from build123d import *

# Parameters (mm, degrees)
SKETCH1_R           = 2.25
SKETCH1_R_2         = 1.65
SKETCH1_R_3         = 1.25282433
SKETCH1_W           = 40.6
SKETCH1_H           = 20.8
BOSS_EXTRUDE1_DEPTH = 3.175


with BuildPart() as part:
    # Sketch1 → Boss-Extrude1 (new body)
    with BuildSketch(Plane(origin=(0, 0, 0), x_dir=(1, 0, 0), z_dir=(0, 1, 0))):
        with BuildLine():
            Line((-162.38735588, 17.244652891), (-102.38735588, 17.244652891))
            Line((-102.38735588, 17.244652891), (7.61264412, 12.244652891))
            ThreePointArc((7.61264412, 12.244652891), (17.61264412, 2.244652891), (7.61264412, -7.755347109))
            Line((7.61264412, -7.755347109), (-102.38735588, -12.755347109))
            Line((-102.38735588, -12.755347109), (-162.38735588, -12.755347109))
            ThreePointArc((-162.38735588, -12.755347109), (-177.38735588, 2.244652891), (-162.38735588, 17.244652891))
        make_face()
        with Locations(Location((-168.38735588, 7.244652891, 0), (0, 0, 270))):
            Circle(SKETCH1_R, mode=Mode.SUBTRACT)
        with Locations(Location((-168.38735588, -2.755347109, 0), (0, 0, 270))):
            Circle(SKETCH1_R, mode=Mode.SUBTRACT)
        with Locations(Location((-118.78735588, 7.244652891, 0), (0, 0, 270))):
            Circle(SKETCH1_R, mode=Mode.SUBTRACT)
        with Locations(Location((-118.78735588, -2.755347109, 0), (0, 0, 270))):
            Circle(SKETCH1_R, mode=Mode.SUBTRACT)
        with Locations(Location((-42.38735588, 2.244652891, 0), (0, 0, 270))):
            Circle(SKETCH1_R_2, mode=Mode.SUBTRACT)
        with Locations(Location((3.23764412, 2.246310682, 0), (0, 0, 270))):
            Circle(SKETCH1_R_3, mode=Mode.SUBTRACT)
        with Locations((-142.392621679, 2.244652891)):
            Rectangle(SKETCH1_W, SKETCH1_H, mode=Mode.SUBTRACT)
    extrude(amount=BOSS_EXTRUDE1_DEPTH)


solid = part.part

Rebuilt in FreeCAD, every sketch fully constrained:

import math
import FreeCAD as App
import Part
import Sketcher
from FreeCAD import Vector


def add_polygon(sketch, points):
    """Adds a closed chain of lines whose ends are joined by coincident constraints."""
    first, n = sketch.GeometryCount, len(points)
    for a, b in zip(points, points[1:] + points[:1]):
        sketch.addGeometry(Part.LineSegment(App.Vector(*a, 0), App.Vector(*b, 0)), False)
    for i in range(n):
        sketch.addConstraint(Sketcher.Constraint("Coincident", first + i, 2, first + (i + 1) % n, 1))

doc = App.newDocument("Part")
body = doc.addObject("PartDesign::Body", "Body")

# Sketch on XZ plane
sketch1 = doc.addObject("Sketcher::SketchObject", "Sketch")
body.addObject(sketch1)
sketch1.AttachmentSupport = (doc.XZ_Plane, [""])
sketch1.MapMode = "FlatFace"
sketch1.addGeometry(Part.LineSegment(Vector(-102.387356, -17.244653, 0), Vector(-162.387356, -17.244653, 0)), False)  # 0
sketch1.addGeometry(Part.ArcOfCircle(Part.Circle(Vector(-162.387356, -2.244653, 0), Vector(0, 0, 1), 15), math.radians(90), math.radians(270)), False)  # 1
sketch1.addGeometry(Part.LineSegment(Vector(-162.387356, 12.755347, 0), Vector(-102.387356, 12.755347, 0)), False)  # 2
sketch1.addGeometry(Part.LineSegment(Vector(-102.387356, 12.755347, 0), Vector(7.612644, 7.755347, 0)), False)  # 3
sketch1.addGeometry(Part.ArcOfCircle(Part.Circle(Vector(7.612644, -2.244653, 0), Vector(0, 0, 1), 10), math.radians(-90), math.radians(90)), False)  # 4
sketch1.addGeometry(Part.LineSegment(Vector(7.612644, -12.244653, 0), Vector(-102.387356, -17.244653, 0)), False)  # 5
sketch1.addGeometry(Part.Circle(Vector(-118.787356, 2.755347, 0), Vector(0, 0, 1), 2.25), False)  # 6
sketch1.addGeometry(Part.Circle(Vector(-168.387356, 2.755347, 0), Vector(0, 0, 1), 2.25), False)  # 7
sketch1.addGeometry(Part.Circle(Vector(3.237644, -2.246311, 0), Vector(0, 0, 1), 1.252824), False)  # 8
sketch1.addGeometry(Part.Circle(Vector(-42.387356, -2.244653, 0), Vector(0, 0, 1), 1.65), False)  # 9
sketch1.addGeometry(Part.Circle(Vector(-118.787356, -7.244653, 0), Vector(0, 0, 1), 2.25), False)  # 10
add_polygon(sketch1, [(-162.692622, 8.155347), (-162.692622, -12.644653), (-122.092622, -12.644653), (-122.092622, 8.155347)])  # lines 11-14
sketch1.addGeometry(Part.Circle(Vector(-168.387356, -7.244653, 0), Vector(0, 0, 1), 2.25), False)  # 15
sketch1.addConstraint([
    Sketcher.Constraint("Tangent", 0, 2, 1, 2),
    Sketcher.Constraint("Tangent", 1, 1, 2, 1),
    Sketcher.Constraint("Coincident", 2, 2, 3, 1),
    Sketcher.Constraint("Coincident", 3, 2, 4, 2),
    Sketcher.Constraint("Coincident", 4, 1, 5, 1),
    Sketcher.Constraint("Coincident", 5, 2, 0, 1),
    Sketcher.Constraint("Horizontal", 0),
    Sketcher.Constraint("Horizontal", 2),
    Sketcher.Constraint("Vertical", 11),
    Sketcher.Constraint("Horizontal", 12),
    Sketcher.Constraint("Vertical", 13),
    Sketcher.Constraint("Horizontal", 14),
    Sketcher.Constraint("Equal", 6, 7),
    Sketcher.Constraint("Equal", 7, 10),
    Sketcher.Constraint("Equal", 10, 15),
    Sketcher.Constraint("Horizontal", 1, 3, 4, 3),
    Sketcher.Constraint("Horizontal", 6, 3, 7, 3),
    Sketcher.Constraint("Horizontal", 4, 3, 9, 3),
    Sketcher.Constraint("Horizontal", 10, 3, 15, 3),
    Sketcher.Constraint("Vertical", 6, 3, 10, 3),
    Sketcher.Constraint("Vertical", 7, 3, 15, 3),
    Sketcher.Constraint("Vertical", 4, 3, 3, 2),
    Sketcher.Constraint("Vertical", 3, 2, 4, 1),
    Sketcher.Constraint("Vertical", 2, 2, 5, 2),
    Sketcher.Constraint("Radius", 1, 15.0),
    Sketcher.Constraint("Radius", 4, 10.0),
    Sketcher.Constraint("Diameter", 6, 4.5),
    Sketcher.Constraint("Diameter", 9, 3.3),
    Sketcher.Constraint("DistanceX", 0, 2, 0, 1, 60.0),
    Sketcher.Constraint("DistanceX", 12, 1, 12, 2, 40.6),
    Sketcher.Constraint("DistanceY", 11, 2, 11, 1, 20.8),
    Sketcher.Constraint("DistanceX", 1, 3, 4, 3, 170.0),
    Sketcher.Constraint("DistanceY", 1, 3, 6, 3, 5.0),
    Sketcher.Constraint("DistanceX", 7, 3, 1, 3, 6.0),
    Sketcher.Constraint("DistanceX", 9, 3, 4, 3, 50.0),
    Sketcher.Constraint("DistanceY", 10, 3, 6, 3, 10.0),
    Sketcher.Constraint("DistanceX", 1, 3, 6, 3, 43.6),
    Sketcher.Constraint("DistanceY", 0, 2, 11, 2, 4.6),
    Sketcher.Constraint("Diameter", 8, 2.505649),
    Sketcher.Constraint("DistanceX", 8, 3, 4, 3, 4.375),
    Sketcher.Constraint("DistanceY", 8, 3, -1, 1, 2.246311),
    Sketcher.Constraint("DistanceX", 11, 2, -1, 1, 162.692622),
    Sketcher.Constraint("DistanceX", 1, 3, -1, 1, 162.387356),
    Sketcher.Constraint("DistanceY", 1, 3, -1, 1, 2.244653),
])
pad1 = doc.addObject("PartDesign::Pad", "Pad")
body.addObject(pad1)
pad1.Profile = sketch1
pad1.Length = 3.175
pad1.Reversed = True

doc.recompute()
